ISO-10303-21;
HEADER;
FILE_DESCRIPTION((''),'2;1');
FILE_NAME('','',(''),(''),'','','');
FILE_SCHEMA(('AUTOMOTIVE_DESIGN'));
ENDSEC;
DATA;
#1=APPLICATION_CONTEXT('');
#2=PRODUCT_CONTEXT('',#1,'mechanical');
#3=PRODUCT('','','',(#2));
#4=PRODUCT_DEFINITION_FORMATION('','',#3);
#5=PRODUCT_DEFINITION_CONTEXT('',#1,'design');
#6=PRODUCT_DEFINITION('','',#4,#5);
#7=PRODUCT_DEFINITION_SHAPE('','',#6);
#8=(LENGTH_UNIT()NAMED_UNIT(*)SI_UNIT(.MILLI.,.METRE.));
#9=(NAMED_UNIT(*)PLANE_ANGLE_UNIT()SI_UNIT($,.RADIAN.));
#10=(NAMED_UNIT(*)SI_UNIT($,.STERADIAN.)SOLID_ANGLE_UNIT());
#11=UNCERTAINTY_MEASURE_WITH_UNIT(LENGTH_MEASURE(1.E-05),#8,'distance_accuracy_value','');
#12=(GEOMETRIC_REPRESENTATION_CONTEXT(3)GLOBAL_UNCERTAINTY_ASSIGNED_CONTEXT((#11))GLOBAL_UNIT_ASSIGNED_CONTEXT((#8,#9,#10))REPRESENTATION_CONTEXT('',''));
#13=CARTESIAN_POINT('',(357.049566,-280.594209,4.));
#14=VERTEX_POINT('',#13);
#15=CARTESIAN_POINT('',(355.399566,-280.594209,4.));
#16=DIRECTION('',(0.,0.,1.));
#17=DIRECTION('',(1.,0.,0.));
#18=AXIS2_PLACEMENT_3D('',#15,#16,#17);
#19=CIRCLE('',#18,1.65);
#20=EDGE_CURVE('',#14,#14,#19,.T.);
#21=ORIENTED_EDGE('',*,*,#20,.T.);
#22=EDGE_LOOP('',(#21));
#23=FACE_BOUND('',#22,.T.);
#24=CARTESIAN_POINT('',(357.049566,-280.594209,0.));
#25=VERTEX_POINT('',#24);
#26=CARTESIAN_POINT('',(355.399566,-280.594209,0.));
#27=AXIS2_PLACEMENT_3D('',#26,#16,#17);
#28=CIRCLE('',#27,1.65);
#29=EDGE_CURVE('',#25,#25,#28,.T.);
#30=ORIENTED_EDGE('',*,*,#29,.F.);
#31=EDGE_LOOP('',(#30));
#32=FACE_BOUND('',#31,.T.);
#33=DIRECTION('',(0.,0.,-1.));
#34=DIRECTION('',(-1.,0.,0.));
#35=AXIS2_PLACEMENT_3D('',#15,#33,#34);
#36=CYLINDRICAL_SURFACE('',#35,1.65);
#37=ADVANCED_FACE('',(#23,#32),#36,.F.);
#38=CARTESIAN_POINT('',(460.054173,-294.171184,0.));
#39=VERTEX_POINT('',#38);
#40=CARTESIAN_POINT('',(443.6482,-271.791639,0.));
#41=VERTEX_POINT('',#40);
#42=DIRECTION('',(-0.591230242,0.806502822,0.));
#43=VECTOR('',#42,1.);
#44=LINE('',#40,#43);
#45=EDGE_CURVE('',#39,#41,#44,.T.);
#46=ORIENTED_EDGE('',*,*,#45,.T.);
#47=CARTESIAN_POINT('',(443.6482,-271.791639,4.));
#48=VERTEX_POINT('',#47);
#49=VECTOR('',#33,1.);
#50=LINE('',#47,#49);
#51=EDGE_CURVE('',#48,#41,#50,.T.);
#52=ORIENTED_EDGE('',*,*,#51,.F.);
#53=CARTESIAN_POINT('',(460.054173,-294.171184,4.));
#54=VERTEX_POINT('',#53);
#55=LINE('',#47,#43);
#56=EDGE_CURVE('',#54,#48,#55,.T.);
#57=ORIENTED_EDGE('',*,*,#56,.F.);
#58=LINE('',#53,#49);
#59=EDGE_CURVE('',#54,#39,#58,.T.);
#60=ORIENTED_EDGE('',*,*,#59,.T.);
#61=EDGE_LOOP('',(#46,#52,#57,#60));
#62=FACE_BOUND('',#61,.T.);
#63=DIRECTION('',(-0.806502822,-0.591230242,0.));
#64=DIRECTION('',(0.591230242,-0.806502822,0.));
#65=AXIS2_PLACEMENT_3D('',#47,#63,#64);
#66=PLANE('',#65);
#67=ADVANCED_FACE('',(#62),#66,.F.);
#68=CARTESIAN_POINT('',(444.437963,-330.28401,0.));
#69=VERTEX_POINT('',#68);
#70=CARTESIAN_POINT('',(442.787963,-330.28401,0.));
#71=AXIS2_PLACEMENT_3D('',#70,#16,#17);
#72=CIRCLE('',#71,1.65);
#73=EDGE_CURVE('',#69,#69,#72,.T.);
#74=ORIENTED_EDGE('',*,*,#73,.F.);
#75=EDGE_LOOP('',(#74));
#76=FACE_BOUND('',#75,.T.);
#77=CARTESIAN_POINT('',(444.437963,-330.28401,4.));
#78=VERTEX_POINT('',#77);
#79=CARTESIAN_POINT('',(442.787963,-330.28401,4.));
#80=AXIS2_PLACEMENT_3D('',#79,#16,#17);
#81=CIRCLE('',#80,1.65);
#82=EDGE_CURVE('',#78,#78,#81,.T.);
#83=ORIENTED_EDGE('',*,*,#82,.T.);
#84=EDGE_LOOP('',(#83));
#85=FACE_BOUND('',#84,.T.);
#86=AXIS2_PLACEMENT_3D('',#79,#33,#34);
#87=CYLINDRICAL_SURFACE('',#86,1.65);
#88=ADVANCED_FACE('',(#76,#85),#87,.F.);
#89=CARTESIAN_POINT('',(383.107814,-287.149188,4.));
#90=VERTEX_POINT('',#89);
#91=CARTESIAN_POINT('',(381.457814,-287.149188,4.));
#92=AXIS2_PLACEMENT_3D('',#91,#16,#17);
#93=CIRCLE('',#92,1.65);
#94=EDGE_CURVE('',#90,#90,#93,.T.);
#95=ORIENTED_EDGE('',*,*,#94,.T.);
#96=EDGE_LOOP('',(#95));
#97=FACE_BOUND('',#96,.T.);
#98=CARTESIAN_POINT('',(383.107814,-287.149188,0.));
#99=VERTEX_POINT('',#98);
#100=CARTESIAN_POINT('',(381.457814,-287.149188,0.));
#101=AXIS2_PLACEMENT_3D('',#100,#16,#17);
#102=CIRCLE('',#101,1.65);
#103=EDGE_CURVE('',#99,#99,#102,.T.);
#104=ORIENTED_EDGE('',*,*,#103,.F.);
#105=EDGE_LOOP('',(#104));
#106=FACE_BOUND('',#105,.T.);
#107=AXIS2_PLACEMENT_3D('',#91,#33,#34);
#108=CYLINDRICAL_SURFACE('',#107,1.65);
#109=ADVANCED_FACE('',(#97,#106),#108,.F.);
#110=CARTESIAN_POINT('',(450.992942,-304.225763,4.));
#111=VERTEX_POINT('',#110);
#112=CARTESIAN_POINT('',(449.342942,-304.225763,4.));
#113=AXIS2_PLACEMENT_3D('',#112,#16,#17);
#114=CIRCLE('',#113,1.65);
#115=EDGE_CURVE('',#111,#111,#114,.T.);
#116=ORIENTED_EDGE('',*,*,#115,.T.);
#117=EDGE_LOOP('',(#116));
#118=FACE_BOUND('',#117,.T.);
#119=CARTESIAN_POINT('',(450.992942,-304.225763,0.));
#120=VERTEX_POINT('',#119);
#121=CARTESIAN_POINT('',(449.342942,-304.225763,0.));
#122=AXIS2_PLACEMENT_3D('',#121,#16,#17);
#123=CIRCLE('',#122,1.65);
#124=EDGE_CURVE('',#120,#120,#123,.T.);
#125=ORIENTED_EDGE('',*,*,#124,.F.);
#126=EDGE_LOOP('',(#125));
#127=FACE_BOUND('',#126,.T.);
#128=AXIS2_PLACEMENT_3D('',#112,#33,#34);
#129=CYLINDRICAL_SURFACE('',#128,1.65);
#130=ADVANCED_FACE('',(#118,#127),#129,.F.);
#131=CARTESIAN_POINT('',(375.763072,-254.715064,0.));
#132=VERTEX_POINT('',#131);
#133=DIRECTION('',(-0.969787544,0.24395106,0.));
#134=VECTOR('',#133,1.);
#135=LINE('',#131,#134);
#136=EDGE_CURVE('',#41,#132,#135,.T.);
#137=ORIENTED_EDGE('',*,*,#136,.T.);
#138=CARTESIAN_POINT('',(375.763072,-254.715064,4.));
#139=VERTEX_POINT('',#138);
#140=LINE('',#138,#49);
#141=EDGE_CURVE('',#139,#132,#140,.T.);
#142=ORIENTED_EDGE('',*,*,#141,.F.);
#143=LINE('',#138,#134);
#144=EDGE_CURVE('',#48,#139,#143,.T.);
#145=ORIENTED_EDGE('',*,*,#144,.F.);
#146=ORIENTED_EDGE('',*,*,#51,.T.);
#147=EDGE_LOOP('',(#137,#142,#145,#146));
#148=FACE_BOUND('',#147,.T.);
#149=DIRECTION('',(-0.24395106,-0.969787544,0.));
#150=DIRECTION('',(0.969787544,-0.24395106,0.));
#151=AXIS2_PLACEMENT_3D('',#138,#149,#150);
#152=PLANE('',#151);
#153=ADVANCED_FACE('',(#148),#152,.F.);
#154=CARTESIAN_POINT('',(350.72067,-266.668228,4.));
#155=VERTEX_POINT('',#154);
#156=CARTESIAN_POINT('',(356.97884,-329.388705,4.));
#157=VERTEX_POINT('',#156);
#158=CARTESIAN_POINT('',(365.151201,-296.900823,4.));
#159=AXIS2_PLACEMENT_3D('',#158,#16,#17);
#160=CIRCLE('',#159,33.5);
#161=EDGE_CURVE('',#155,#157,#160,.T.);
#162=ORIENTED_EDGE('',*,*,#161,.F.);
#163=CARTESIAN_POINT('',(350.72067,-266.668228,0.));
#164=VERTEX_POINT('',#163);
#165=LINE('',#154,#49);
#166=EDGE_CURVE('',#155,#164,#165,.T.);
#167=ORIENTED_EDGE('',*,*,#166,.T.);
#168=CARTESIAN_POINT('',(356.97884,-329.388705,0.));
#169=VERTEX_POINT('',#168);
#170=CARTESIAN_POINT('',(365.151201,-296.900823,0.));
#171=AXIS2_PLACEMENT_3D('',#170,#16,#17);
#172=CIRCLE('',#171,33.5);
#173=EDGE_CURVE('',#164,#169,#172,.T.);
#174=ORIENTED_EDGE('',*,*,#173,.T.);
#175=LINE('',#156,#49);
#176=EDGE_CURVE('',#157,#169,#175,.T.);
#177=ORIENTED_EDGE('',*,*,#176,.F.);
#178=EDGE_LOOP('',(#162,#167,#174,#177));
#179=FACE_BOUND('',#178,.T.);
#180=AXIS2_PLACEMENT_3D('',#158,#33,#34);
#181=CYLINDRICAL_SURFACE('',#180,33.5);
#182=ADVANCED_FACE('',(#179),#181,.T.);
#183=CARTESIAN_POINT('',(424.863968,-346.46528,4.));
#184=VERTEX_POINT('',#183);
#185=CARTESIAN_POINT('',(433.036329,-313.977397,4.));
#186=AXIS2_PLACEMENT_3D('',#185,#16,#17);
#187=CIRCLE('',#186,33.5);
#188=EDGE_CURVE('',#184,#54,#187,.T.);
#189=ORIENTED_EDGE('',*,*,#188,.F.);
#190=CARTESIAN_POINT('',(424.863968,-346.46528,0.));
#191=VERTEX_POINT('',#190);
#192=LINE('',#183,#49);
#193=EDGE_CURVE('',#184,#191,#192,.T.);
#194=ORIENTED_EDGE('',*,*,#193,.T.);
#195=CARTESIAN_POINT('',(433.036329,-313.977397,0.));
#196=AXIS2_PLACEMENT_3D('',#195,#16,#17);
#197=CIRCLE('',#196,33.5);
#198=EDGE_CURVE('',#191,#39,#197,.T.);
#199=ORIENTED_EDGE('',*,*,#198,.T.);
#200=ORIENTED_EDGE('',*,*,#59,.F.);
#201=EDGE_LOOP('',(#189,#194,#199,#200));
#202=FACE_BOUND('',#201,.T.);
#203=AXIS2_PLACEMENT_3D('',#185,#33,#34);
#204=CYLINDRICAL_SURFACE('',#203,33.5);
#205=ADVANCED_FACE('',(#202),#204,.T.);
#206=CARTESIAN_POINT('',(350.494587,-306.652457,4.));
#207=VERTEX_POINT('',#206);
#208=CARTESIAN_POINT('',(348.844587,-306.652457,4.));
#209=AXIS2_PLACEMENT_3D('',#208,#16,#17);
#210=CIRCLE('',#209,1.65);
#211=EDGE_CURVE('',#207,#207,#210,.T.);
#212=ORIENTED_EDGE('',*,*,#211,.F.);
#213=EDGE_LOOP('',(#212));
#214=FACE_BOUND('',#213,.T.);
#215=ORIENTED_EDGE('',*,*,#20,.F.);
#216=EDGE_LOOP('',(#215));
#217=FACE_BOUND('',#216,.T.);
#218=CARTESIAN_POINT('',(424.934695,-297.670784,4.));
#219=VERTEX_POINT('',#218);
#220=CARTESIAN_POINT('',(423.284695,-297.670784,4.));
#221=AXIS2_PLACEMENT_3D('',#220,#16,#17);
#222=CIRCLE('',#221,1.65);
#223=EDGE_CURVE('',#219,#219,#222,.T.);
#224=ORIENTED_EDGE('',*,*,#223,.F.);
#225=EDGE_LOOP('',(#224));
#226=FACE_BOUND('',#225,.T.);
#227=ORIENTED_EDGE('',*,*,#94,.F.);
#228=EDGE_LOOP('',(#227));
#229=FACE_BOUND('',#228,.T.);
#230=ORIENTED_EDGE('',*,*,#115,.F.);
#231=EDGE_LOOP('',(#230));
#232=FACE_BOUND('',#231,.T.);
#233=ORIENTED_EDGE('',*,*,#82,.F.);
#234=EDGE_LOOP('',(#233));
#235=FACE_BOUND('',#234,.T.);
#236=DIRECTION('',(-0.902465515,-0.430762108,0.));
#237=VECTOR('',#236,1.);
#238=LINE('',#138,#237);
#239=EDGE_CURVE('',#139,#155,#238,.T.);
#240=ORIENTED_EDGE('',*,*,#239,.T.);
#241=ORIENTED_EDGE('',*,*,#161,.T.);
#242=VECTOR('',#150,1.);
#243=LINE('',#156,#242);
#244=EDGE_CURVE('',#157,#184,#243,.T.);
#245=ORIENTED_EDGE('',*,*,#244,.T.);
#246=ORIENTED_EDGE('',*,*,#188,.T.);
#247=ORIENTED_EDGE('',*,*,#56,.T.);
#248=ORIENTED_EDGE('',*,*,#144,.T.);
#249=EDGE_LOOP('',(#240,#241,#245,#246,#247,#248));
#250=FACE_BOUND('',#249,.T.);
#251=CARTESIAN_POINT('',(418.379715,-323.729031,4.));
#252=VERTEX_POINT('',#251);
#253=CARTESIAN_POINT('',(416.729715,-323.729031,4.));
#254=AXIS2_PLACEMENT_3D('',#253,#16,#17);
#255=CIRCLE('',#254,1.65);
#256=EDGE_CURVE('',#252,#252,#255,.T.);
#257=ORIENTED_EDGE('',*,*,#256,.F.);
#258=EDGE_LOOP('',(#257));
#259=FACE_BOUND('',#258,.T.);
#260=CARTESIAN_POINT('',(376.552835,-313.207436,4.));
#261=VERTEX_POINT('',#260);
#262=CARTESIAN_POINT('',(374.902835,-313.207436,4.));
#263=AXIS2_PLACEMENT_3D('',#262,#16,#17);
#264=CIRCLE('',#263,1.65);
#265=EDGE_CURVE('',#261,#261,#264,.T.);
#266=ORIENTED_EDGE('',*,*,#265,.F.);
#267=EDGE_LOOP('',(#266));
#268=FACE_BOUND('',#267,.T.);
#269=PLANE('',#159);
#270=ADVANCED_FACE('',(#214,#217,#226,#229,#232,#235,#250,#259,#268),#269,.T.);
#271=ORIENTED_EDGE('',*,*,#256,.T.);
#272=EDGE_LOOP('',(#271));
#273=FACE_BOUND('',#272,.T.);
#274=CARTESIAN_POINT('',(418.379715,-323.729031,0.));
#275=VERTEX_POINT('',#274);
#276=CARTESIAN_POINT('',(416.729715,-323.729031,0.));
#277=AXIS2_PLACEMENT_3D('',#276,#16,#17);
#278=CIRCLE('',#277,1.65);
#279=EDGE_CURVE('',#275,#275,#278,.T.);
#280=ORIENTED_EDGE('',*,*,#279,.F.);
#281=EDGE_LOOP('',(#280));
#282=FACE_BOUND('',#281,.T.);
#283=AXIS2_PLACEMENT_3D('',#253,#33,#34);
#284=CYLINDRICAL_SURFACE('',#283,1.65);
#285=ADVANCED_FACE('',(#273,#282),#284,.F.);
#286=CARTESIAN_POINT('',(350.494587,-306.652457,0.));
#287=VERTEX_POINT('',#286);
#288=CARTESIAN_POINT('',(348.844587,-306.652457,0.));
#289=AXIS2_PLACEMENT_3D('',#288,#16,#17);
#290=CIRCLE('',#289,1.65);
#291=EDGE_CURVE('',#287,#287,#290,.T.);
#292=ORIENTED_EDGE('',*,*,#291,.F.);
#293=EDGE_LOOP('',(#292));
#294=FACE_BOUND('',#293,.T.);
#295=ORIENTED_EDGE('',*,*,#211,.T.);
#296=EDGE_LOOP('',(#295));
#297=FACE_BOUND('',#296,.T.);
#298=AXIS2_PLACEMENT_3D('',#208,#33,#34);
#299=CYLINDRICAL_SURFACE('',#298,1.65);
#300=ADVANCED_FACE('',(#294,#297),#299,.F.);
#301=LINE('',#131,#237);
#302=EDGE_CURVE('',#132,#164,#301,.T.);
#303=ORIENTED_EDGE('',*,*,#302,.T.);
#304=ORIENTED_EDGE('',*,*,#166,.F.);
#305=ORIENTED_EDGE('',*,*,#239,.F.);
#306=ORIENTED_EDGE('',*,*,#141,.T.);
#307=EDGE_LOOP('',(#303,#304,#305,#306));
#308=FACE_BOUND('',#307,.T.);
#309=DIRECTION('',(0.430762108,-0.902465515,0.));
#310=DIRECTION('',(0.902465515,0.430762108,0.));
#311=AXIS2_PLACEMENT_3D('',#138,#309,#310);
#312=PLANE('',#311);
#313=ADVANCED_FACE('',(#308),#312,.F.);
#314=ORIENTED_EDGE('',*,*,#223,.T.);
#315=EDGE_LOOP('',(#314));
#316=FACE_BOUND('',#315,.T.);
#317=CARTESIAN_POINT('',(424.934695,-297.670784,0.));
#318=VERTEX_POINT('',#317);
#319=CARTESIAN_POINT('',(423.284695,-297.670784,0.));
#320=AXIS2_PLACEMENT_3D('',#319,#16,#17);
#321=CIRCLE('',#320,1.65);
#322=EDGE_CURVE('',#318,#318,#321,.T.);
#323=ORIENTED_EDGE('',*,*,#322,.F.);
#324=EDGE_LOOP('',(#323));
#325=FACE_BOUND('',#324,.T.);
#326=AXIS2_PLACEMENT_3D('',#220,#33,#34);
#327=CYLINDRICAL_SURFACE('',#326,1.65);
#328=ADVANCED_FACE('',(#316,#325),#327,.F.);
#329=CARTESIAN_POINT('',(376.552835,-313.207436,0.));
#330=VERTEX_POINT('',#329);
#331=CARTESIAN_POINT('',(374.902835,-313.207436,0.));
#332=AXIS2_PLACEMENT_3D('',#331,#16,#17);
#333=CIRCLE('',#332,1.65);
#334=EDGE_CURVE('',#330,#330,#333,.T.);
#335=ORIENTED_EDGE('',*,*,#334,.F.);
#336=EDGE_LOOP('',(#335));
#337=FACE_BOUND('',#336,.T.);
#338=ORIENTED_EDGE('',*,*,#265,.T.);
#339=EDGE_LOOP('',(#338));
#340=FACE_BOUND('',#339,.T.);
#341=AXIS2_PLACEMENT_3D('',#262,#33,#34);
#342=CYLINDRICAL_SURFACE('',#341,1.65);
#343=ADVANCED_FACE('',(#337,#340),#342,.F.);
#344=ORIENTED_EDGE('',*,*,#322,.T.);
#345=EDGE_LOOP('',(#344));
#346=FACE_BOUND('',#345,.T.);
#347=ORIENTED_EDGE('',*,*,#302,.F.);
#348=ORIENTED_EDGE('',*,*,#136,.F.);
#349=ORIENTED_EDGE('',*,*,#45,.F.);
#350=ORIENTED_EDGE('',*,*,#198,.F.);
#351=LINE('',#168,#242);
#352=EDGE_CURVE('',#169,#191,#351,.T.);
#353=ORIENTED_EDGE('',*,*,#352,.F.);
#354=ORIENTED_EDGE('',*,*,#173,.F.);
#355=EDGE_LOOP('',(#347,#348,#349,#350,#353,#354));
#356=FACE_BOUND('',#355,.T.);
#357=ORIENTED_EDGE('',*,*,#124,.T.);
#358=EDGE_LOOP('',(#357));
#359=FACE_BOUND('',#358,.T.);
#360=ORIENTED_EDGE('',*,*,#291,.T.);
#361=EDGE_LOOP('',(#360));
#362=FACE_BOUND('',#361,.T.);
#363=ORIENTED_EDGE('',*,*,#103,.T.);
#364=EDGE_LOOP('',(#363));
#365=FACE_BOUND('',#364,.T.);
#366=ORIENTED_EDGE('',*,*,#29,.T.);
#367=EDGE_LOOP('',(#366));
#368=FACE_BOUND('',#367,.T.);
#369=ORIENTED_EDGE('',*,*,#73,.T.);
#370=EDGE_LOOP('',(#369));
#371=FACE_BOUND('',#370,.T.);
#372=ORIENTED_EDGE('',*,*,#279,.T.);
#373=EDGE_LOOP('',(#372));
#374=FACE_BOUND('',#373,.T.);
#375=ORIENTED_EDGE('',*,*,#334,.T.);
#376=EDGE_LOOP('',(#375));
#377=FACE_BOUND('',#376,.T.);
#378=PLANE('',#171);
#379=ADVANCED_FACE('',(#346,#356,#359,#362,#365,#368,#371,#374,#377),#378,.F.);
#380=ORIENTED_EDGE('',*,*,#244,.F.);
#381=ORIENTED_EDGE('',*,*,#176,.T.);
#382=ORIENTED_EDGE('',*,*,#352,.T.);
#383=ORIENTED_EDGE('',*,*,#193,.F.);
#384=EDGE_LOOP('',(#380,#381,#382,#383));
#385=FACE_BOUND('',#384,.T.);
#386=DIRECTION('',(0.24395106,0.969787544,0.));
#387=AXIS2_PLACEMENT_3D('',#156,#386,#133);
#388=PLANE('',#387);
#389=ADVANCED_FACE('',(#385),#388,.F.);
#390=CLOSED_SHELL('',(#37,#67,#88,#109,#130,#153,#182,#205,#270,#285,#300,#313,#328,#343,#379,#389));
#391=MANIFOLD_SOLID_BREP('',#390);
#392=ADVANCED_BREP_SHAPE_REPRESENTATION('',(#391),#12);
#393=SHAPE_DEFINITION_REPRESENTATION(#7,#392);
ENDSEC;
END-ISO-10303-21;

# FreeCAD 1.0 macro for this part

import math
import FreeCAD as App
import Part
import Sketcher
from FreeCAD import Vector

doc = App.newDocument("Part")
params = doc.addObject("Spreadsheet::Sheet", "Params")
for row, (alias, value) in enumerate([
    ("sketch1_diameter", "3.3 mm"),
    ("sketch1_radius", "33.5 mm"),
    ("sketch1_length", "70 mm"),
    ("pad1_length", "4 mm"),
], start=1):
    params.set(f"A{row}", alias)
    params.set(f"B{row}", "=" + value)
    params.setAlias(f"B{row}", alias)

body = doc.addObject("PartDesign::Body", "Body")

# Sketch on XY plane
sketch1 = body.newObject("Sketcher::SketchObject", "Sketch")
sketch1.AttachmentSupport = (doc.getObject("XY_Plane"), [""])
sketch1.MapMode = "FlatFace"
sketch1.addGeometry([
    Part.LineSegment(Vector(356.97884, -329.388705, 0), Vector(424.863968, -346.46528, 0)),  # 0
    Part.ArcOfCircle(Part.Circle(Vector(433.036329, -313.977397, 0), Vector(0, 0, 1), 33.5), math.radians(-104.119853), math.radians(36.244359)),  # 1
    Part.LineSegment(Vector(460.054173, -294.171184, 0), Vector(443.6482, -271.791639, 0)),  # 2
    Part.LineSegment(Vector(443.6482, -271.791639, 0), Vector(375.763072, -254.715064, 0)),  # 3
    Part.LineSegment(Vector(375.763072, -254.715064, 0), Vector(350.72067, -266.668228, 0)),  # 4
    Part.ArcOfCircle(Part.Circle(Vector(365.151201, -296.900823, 0), Vector(0, 0, 1), 33.5), math.radians(115.515935), math.radians(255.880147)),  # 5
    Part.Circle(Vector(348.844587, -306.652457, 0), Vector(0, 0, 1), 1.65),  # 6
    Part.Circle(Vector(374.902835, -313.207436, 0), Vector(0, 0, 1), 1.65),  # 7
    Part.Circle(Vector(416.729715, -323.729031, 0), Vector(0, 0, 1), 1.65),  # 8
    Part.Circle(Vector(442.787963, -330.28401, 0), Vector(0, 0, 1), 1.65),  # 9
    Part.Circle(Vector(355.399566, -280.594209, 0), Vector(0, 0, 1), 1.65),  # 10
    Part.Circle(Vector(381.457814, -287.149188, 0), Vector(0, 0, 1), 1.65),  # 11
    Part.Circle(Vector(423.284695, -297.670784, 0), Vector(0, 0, 1), 1.65),  # 12
    Part.Circle(Vector(449.342942, -304.225763, 0), Vector(0, 0, 1), 1.65),  # 13
], False)
sketch1.addConstraint([
    Sketcher.Constraint("Tangent", 0, 2, 1, 1),
    Sketcher.Constraint("Tangent", 1, 2, 2, 1),
    Sketcher.Constraint("Coincident", 2, 2, 3, 1),
    Sketcher.Constraint("Coincident", 3, 2, 4, 1),
    Sketcher.Constraint("Tangent", 4, 2, 5, 1),
    Sketcher.Constraint("Tangent", 5, 2, 0, 1),
    Sketcher.Constraint("Equal", 1, 5),
    Sketcher.Constraint("Equal", 6, 7),
    Sketcher.Constraint("Equal", 7, 8),
    Sketcher.Constraint("Equal", 8, 9),
    Sketcher.Constraint("Equal", 9, 10),
    Sketcher.Constraint("Equal", 10, 11),
    Sketcher.Constraint("Equal", 11, 12),
    Sketcher.Constraint("Equal", 12, 13),
    Sketcher.Constraint("Parallel", 0, 3),
    Sketcher.Constraint("Equal", 0, 3),
    Sketcher.Constraint("Diameter", 6, 3.3),
    Sketcher.Constraint("Radius", 1, 33.5),
    Sketcher.Constraint("Distance", 0, 70.0),
    Sketcher.Constraint("DistanceX", -1, 1, 5, 3, 365.151201),
    Sketcher.Constraint("DistanceX", -1, 1, 2, 2, 443.6482),
    Sketcher.Constraint("DistanceX", 11, 3, 8, 3, 35.271902),
    Sketcher.Constraint("DistanceY", 12, 3, 1, 2, 3.4996),
    Sketcher.Constraint("DistanceX", 4, 2, 3, 2, 25.042402),
    Sketcher.Constraint("DistanceX", -1, 1, 1, 3, 433.036329),
    Sketcher.Constraint("DistanceY", 8, 3, -1, 1, 323.729031),
    Sketcher.Constraint("DistanceY", 9, 3, -1, 1, 330.28401),
    Sketcher.Constraint("DistanceY", 10, 3, -1, 1, 280.594209),
    Sketcher.Constraint("DistanceY", 11, 3, -1, 1, 287.149188),
    Sketcher.Constraint("DistanceX", -1, 1, 13, 3, 449.342942),
    Sketcher.Constraint("DistanceY", 0, 2, -1, 1, 346.46528),
    Sketcher.Constraint("DistanceX", 6, 3, 1, 3, 84.191741),
    Sketcher.Constraint("DistanceY", 1, 3, 6, 3, 7.32494),
    Sketcher.Constraint("DistanceY", 7, 3, 6, 3, 6.554979),
    Sketcher.Constraint("DistanceX", 7, 3, 8, 3, 41.826881),
    Sketcher.Constraint("DistanceX", 6, 3, 8, 3, 67.885128),
    Sketcher.Constraint("DistanceX", 7, 3, 9, 3, 67.885128),
    Sketcher.Constraint("DistanceX", 6, 3, 10, 3, 6.554979),
    Sketcher.Constraint("DistanceX", 8, 3, 12, 3, 6.554979),
    Sketcher.Constraint("DistanceY", 13, 3, 12, 3, 6.554979),
])
sketch1.setExpression("Constraints[16]", "Params.sketch1_diameter")
sketch1.setExpression("Constraints[17]", "Params.sketch1_radius")
sketch1.setExpression("Constraints[18]", "Params.sketch1_length")
pad1 = body.newObject("PartDesign::Pad", "Pad")
pad1.Profile = sketch1
pad1.setExpression("Length", "Params.pad1_length")

doc.recompute()
